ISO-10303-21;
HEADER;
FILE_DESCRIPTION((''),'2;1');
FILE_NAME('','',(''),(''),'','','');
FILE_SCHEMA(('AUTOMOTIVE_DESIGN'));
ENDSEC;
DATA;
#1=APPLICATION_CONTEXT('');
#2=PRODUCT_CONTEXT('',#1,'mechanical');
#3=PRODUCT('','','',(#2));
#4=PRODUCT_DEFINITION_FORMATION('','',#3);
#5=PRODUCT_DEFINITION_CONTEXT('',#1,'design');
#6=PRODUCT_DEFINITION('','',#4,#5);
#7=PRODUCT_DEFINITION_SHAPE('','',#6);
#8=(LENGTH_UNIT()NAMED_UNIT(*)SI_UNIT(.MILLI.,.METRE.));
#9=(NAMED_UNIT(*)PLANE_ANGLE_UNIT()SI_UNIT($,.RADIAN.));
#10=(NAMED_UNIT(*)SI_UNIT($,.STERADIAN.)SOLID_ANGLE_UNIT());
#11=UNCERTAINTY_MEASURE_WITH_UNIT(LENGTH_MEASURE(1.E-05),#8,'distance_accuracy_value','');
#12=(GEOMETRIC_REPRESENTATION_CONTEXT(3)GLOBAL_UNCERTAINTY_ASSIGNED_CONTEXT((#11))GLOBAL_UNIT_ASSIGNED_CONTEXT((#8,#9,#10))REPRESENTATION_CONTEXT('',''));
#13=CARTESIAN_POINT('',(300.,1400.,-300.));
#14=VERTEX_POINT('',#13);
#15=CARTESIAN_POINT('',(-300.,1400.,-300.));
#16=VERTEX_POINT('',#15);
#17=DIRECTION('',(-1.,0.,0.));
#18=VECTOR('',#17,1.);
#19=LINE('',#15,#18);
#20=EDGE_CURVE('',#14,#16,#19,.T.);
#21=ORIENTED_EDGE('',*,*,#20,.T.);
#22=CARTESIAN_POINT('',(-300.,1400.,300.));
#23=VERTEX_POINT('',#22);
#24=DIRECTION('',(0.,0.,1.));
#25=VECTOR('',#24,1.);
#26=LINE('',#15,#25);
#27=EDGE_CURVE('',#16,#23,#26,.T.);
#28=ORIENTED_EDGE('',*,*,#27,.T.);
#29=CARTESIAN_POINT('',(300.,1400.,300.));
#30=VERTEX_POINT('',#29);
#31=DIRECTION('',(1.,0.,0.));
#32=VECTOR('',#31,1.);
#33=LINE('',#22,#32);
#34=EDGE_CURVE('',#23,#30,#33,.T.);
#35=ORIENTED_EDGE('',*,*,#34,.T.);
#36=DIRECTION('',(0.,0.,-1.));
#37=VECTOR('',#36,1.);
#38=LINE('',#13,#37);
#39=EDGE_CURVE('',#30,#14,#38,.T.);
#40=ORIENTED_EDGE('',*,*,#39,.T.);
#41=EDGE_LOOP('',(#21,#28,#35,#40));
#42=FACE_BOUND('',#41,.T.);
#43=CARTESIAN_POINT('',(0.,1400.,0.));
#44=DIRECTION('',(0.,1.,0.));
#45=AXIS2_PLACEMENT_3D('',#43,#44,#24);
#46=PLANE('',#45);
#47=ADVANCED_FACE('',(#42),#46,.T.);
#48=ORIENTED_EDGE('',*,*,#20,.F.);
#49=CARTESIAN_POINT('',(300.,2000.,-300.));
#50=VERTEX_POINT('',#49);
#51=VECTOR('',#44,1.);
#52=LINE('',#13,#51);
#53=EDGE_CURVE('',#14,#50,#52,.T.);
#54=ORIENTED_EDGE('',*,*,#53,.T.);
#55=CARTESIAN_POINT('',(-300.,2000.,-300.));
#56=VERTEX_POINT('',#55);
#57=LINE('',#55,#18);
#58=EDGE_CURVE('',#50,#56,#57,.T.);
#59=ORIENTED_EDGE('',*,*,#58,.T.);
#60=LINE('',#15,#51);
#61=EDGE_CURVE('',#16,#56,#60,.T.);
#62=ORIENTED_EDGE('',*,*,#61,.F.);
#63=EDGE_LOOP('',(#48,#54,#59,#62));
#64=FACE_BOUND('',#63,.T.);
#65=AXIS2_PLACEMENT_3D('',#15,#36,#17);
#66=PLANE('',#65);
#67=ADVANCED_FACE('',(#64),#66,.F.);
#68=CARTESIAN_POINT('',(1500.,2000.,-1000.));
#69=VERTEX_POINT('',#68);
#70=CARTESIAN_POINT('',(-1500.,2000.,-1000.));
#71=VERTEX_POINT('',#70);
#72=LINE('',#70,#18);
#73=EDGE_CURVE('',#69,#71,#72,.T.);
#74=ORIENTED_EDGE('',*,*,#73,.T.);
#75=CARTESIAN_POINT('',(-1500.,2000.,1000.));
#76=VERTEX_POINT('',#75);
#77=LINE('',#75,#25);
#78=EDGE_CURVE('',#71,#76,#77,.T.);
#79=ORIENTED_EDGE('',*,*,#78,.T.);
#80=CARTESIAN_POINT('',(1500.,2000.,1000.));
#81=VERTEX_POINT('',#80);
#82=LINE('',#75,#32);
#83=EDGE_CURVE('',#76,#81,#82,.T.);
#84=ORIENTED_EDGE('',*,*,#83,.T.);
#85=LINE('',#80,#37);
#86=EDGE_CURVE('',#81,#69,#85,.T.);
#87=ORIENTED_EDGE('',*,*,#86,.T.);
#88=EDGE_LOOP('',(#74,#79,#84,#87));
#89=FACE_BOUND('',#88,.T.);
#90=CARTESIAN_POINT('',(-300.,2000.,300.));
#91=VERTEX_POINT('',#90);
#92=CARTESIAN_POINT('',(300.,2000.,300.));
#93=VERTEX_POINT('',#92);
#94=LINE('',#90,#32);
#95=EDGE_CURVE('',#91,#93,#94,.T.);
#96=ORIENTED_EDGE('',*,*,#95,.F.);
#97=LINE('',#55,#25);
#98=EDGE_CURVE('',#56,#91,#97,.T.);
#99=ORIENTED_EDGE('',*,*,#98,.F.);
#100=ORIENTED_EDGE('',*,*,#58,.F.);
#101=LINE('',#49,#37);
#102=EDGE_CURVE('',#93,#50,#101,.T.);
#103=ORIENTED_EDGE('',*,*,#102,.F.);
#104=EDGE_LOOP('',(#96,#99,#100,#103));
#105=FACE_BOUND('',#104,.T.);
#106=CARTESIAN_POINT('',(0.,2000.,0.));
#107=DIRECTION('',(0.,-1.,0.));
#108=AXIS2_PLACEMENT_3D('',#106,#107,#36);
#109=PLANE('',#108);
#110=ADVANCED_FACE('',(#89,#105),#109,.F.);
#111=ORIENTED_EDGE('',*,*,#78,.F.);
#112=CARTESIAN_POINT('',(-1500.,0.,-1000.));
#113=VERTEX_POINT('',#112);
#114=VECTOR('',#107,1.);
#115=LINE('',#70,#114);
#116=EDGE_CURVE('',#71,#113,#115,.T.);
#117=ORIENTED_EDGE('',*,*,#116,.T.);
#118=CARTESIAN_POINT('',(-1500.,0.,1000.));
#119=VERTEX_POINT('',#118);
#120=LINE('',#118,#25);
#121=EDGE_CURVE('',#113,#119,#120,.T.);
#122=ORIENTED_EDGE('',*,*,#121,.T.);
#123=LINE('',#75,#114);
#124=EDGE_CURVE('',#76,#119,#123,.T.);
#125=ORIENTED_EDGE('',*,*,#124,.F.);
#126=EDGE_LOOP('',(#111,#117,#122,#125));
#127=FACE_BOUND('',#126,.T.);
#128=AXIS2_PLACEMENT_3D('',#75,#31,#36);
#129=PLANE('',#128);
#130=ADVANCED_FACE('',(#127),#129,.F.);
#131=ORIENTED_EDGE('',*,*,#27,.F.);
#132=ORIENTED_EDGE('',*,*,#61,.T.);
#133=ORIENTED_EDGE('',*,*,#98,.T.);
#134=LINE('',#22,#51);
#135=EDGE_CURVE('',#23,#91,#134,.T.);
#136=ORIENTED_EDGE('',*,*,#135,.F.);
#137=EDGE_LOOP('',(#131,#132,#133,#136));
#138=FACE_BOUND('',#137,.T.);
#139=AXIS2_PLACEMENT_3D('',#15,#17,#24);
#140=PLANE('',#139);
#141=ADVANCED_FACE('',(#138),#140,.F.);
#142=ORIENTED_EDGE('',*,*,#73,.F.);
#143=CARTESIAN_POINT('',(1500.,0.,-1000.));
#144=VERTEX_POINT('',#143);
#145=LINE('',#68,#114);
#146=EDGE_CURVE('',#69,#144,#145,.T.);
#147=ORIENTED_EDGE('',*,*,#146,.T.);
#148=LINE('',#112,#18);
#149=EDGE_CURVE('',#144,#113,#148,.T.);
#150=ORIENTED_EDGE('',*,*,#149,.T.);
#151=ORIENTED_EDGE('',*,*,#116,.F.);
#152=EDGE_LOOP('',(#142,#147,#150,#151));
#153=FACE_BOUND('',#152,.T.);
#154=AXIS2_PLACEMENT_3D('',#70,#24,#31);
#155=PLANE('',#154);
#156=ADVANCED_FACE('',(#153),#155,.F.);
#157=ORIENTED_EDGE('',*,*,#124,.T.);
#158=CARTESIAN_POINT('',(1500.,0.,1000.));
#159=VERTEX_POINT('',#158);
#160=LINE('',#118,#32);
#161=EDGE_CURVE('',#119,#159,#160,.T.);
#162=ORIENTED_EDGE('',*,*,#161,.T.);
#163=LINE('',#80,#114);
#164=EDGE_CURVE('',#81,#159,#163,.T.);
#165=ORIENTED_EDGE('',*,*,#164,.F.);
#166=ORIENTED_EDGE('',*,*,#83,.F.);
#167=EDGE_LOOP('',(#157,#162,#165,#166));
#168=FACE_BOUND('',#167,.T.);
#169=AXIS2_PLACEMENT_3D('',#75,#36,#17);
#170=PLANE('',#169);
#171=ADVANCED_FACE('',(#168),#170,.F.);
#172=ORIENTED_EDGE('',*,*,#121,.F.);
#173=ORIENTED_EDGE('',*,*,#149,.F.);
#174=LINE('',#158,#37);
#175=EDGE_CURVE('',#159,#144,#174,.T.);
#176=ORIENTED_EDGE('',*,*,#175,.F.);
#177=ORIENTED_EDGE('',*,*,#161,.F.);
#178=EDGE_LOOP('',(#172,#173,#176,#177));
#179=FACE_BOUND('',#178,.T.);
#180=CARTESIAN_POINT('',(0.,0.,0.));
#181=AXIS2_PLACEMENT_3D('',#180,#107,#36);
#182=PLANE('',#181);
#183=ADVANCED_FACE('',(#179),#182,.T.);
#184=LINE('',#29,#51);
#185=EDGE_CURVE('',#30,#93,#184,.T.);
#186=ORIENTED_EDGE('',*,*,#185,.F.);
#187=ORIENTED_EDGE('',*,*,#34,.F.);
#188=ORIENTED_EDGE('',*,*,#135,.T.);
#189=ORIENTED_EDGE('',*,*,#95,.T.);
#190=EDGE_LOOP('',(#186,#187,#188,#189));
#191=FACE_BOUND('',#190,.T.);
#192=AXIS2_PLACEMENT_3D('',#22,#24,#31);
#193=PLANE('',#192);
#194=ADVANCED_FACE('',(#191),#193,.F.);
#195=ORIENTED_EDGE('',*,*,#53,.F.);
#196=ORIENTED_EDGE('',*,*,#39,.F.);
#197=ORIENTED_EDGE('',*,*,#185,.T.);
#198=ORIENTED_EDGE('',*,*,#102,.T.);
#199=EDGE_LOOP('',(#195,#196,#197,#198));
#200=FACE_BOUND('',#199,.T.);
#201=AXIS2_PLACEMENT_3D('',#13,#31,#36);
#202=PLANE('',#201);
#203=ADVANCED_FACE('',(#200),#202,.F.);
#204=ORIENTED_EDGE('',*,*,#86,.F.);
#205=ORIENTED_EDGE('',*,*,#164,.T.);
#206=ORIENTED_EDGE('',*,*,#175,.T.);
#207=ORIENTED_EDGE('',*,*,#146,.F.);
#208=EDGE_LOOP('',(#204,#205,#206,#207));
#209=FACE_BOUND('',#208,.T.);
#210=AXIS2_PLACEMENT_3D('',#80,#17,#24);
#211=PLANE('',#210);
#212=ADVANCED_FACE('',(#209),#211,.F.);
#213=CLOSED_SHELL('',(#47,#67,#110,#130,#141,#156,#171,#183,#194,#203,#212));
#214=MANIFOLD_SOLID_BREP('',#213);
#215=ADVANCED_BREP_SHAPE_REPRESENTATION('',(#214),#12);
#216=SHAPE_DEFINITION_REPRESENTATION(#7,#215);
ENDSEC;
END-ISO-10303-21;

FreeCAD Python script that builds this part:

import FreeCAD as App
import Part
import Sketcher
Q = App.Units.Quantity


def add_polygon(sketch, points):
    """Adds a closed chain of lines whose ends are joined by coincident constraints."""
    first, n = sketch.GeometryCount, len(points)
    for a, b in zip(points, points[1:] + points[:1]):
        sketch.addGeometry(Part.LineSegment(App.Vector(*a, 0), App.Vector(*b, 0)), False)
    for i in range(n):
        sketch.addConstraint(Sketcher.Constraint("Coincident", first + i, 2, first + (i + 1) % n, 1))

doc = App.newDocument("Part")
body = doc.addObject("PartDesign::Body", "Body")

# Sketch on XZ plane
sketch1 = body.newObject("Sketcher::SketchObject", "Sketch")
sketch1.AttachmentSupport = (doc.getObject("XZ_Plane"), [""])
sketch1.MapMode = "FlatFace"
add_polygon(sketch1, [(-1500, -1000), (-1500, 1000), (1500, 1000), (1500, -1000)])  # lines 0-3
sketch1.addConstraint([
    Sketcher.Constraint("Vertical", 0),
    Sketcher.Constraint("Horizontal", 1),
    Sketcher.Constraint("Vertical", 2),
    Sketcher.Constraint("Horizontal", 3),
    Sketcher.Constraint("Symmetric", 0, 2, 2, 2, -1, 1),
    Sketcher.Constraint("DistanceX", 1, 1, 1, 2, Q("3000 mm")),
    Sketcher.Constraint("DistanceY", 0, 1, 0, 2, Q("2000 mm")),
])
pad1 = body.newObject("PartDesign::Pad", "Pad")
pad1.Profile = sketch1
pad1.Length = 2000
pad1.Reversed = True

# Sketch on XZ plane
sketch2 = body.newObject("Sketcher::SketchObject", "Sketch001")
sketch2.AttachmentSupport = (doc.getObject("XZ_Plane"), [""])
sketch2.MapMode = "FlatFace"
sketch2.AttachmentOffset = App.Placement(App.Vector(0, 0, -2000), App.Rotation())
add_polygon(sketch2, [(-300, -300), (-300, 300), (300, 300), (300, -300)])  # lines 0-3
sketch2.addConstraint([
    Sketcher.Constraint("Vertical", 0),
    Sketcher.Constraint("Horizontal", 1),
    Sketcher.Constraint("Vertical", 2),
    Sketcher.Constraint("Horizontal", 3),
    Sketcher.Constraint("Symmetric", 0, 2, 2, 2, -1, 1),
    Sketcher.Constraint("Equal", 3, 0),
    Sketcher.Constraint("DistanceX", 1, 1, 1, 2, Q("600 mm")),
])
pocket1 = body.newObject("PartDesign::Pocket", "Pocket")
pocket1.Profile = sketch2
pocket1.Length = 600
pocket1.Reversed = True

doc.recompute()
